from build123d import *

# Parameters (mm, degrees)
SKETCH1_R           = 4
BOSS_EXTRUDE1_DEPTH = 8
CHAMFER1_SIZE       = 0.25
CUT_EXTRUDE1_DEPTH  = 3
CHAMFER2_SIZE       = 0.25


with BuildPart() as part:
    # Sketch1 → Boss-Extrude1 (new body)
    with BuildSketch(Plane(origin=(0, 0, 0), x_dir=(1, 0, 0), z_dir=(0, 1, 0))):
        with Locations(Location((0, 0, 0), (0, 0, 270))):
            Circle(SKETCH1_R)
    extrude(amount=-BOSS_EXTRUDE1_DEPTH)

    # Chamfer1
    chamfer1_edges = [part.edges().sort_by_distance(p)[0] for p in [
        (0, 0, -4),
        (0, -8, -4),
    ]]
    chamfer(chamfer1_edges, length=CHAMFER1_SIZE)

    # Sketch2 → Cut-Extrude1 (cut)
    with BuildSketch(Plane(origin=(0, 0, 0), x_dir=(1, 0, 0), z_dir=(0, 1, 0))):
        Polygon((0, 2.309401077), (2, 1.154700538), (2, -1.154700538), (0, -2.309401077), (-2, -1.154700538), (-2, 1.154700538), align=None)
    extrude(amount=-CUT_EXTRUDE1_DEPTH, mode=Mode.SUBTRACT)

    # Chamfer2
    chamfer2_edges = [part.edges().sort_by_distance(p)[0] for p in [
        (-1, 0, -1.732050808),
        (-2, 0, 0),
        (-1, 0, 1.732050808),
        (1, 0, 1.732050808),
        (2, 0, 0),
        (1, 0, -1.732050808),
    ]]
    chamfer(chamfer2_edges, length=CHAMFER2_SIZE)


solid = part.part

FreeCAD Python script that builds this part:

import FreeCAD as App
import Part
import Sketcher

V = App.Vector
Q = App.Units.Quantity


def edges_at(feature, points):
    """Names of the edges that pass closest to the given points."""
    edges = feature.Shape.Edges
    near = lambda p: min(range(len(edges)), key=lambda i: edges[i].distToShape(Part.Vertex(*p))[0])
    return sorted({f"Edge{near(p) + 1}" for p in points})

doc = App.newDocument("Part")
body = doc.addObject("PartDesign::Body", "Body")

# Sketch on XZ plane
sketch1 = body.newObject("Sketcher::SketchObject", "Sketch")
sketch1.AttachmentSupport = (doc.getObject("XZ_Plane"), [""])
sketch1.MapMode = "FlatFace"
sketch1.addGeometry(Part.Circle(V(0, 0, 0), V(0, 0, 1), 4), False)
sketch1.addConstraint([
    Sketcher.Constraint("Coincident", 0, 3, -1, 1),
    Sketcher.Constraint("Diameter", 0, 8.0),
])
pad1 = body.newObject("PartDesign::Pad", "Pad")
pad1.Profile = sketch1
pad1.Length = 8
doc.recompute()

chamfer = body.newObject("PartDesign::Chamfer", "Chamfer")
chamfer.Base = (pad1, edges_at(pad1, [(0, 0, -4), (0, -8, -4)]))
chamfer.Size = 0.25

# Sketch on XZ plane
sketch2 = body.newObject("Sketcher::SketchObject", "Sketch001")
sketch2.AttachmentSupport = (doc.getObject("XZ_Plane"), [""])
sketch2.MapMode = "FlatFace"
sketch2.addGeometry([
    Part.LineSegment(V(2, -1.2, 0), V(0, -2.3, 0)),  # 0
    Part.LineSegment(V(0, -2.3, 0), V(-2, -1.2, 0)),  # 1
    Part.LineSegment(V(-2, -1.2, 0), V(-2, 1.2, 0)),  # 2
    Part.LineSegment(V(-2, 1.2, 0), V(0, 2.3, 0)),  # 3
    Part.LineSegment(V(0, 2.3, 0), V(2, 1.2, 0)),  # 4
    Part.LineSegment(V(2, 1.2, 0), V(2, -1.2, 0)),  # 5
], False)
sketch2.addConstraint([
    Sketcher.Constraint("Coincident", 0, 2, 1, 1),
    Sketcher.Constraint("Coincident", 1, 2, 2, 1),
    Sketcher.Constraint("Coincident", 2, 2, 3, 1),
    Sketcher.Constraint("Coincident", 3, 2, 4, 1),
    Sketcher.Constraint("Coincident", 4, 2, 5, 1),
    Sketcher.Constraint("Coincident", 5, 2, 0, 1),
    Sketcher.Constraint("Vertical", 2),
    Sketcher.Constraint("Vertical", 5),
    Sketcher.Constraint("Symmetric", 0, 2, 3, 2, -1, 1),
    Sketcher.Constraint("Symmetric", 1, 2, 4, 2, -1, 1),
    Sketcher.Constraint("PointOnObject", 0, 2, -2),
    Sketcher.Constraint("Parallel", 0, 3),
    Sketcher.Constraint("Horizontal", 2, 2, 4, 2),
    Sketcher.Constraint("Angle", 0, Q("-150 deg")),
    Sketcher.Constraint("DistanceX", 1, 2, -1, 1, 2.0),
    Sketcher.Constraint("DistanceY", 2, 1, 2, 2, 2.309401),
])
pocket1 = body.newObject("PartDesign::Pocket", "Pocket")
pocket1.Profile = sketch2
pocket1.Length = 3
pocket1.Reversed = True
doc.recompute()

chamfer2 = body.newObject("PartDesign::Chamfer", "Chamfer001")
chamfer2.Base = (pocket1, edges_at(pocket1, [
    (-1, 0, -1.732),
    (-2, 0, 0),
    (-1, 0, 1.732),
    (1, 0, 1.732),
    (2, 0, 0),
    (1, 0, -1.732),
]))
chamfer2.Size = 0.25

doc.recompute()
